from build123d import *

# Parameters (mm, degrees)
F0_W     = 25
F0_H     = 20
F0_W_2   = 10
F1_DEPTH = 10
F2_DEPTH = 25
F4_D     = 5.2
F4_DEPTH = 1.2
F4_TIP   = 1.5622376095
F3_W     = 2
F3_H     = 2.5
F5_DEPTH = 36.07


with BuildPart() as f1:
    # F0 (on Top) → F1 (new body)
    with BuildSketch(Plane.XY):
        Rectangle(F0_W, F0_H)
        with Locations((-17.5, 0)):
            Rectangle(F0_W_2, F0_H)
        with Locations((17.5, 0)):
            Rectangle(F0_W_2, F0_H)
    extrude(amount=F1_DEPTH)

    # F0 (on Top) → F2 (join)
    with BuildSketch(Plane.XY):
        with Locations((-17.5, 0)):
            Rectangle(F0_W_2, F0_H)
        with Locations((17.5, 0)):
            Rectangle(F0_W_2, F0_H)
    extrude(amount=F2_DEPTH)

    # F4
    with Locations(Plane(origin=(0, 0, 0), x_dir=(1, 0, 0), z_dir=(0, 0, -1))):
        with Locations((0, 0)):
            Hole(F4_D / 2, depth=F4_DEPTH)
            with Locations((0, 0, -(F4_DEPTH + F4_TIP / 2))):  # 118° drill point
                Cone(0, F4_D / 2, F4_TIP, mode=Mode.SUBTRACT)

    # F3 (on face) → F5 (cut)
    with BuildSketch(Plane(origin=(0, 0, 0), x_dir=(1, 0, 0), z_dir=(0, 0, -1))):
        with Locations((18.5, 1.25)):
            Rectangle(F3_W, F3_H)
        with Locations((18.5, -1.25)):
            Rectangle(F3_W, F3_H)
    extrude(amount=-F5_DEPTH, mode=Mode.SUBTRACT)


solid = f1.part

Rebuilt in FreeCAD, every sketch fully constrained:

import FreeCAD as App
import Part
import Sketcher

doc = App.newDocument("Part")
body = doc.addObject("PartDesign::Body", "Body")

sketch1 = doc.addObject("Sketcher::SketchObject", "Sketch")
body.addObject(sketch1)
sketch1.AttachmentSupport = (doc.XY_Plane, [""])
sketch1.MapMode = "FlatFace"
sketch1.addGeometry([
    Part.LineSegment(App.Vector(-22, 10, 0), App.Vector(-22, -10, 0)),
    Part.LineSegment(App.Vector(-22, -10, 0), App.Vector(22, -10, 0)),
    Part.LineSegment(App.Vector(22, -10, 0), App.Vector(22, 10, 0)),
    Part.LineSegment(App.Vector(22, 10, 0), App.Vector(-22, 10, 0)),
], False)
sketch1.addConstraint([
    Sketcher.Constraint("Coincident", 0, 2, 1, 1),
    Sketcher.Constraint("Coincident", 1, 2, 2, 1),
    Sketcher.Constraint("Coincident", 2, 2, 3, 1),
    Sketcher.Constraint("Coincident", 3, 2, 0, 1),
    Sketcher.Constraint("Vertical", 0),
    Sketcher.Constraint("Horizontal", 1),
    Sketcher.Constraint("Vertical", 2),
    Sketcher.Constraint("Horizontal", 3),
    Sketcher.Constraint("Symmetric", 0, 2, 2, 2, -1, 1),
    Sketcher.Constraint("DistanceX", 1, 1, 1, 2, 45.0),
    Sketcher.Constraint("DistanceY", 0, 2, 0, 1, 20.0),
])
pad1 = doc.addObject("PartDesign::Pad", "Pad")
body.addObject(pad1)
pad1.Profile = sketch1
pad1.Length = 10

sketch2 = doc.addObject("Sketcher::SketchObject", "Sketch001")
body.addObject(sketch2)
sketch2.AttachmentSupport = (doc.XY_Plane, [""])
sketch2.MapMode = "FlatFace"
sketch2.addGeometry([
    Part.LineSegment(App.Vector(-22, 10, 0), App.Vector(-22, -10, 0)),
    Part.LineSegment(App.Vector(-22, -10, 0), App.Vector(-12, -10, 0)),
    Part.LineSegment(App.Vector(-12, -10, 0), App.Vector(-12, 10, 0)),
    Part.LineSegment(App.Vector(-12, 10, 0), App.Vector(-22, 10, 0)),
    Part.LineSegment(App.Vector(12, 10, 0), App.Vector(12, -10, 0)),
    Part.LineSegment(App.Vector(12, -10, 0), App.Vector(22, -10, 0)),
    Part.LineSegment(App.Vector(22, -10, 0), App.Vector(22, 10, 0)),
    Part.LineSegment(App.Vector(22, 10, 0), App.Vector(12, 10, 0)),
], False)
sketch2.addConstraint([
    Sketcher.Constraint("Coincident", 0, 2, 1, 1),
    Sketcher.Constraint("Coincident", 1, 2, 2, 1),
    Sketcher.Constraint("Coincident", 2, 2, 3, 1),
    Sketcher.Constraint("Coincident", 3, 2, 0, 1),
    Sketcher.Constraint("Coincident", 4, 2, 5, 1),
    Sketcher.Constraint("Coincident", 5, 2, 6, 1),
    Sketcher.Constraint("Coincident", 6, 2, 7, 1),
    Sketcher.Constraint("Coincident", 7, 2, 4, 1),
    Sketcher.Constraint("Vertical", 0),
    Sketcher.Constraint("Horizontal", 1),
    Sketcher.Constraint("Vertical", 2),
    Sketcher.Constraint("Horizontal", 3),
    Sketcher.Constraint("Vertical", 4),
    Sketcher.Constraint("Horizontal", 5),
    Sketcher.Constraint("Vertical", 6),
    Sketcher.Constraint("Horizontal", 7),
    Sketcher.Constraint("Symmetric", 2, 2, 4, 2, -1, 1),
    Sketcher.Constraint("Symmetric", 0, 2, 6, 2, -1, 1),
    Sketcher.Constraint("Horizontal", 1, 2, 4, 2),
    Sketcher.Constraint("DistanceX", 1, 1, 1, 2, 10.0),
    Sketcher.Constraint("DistanceY", 0, 2, 0, 1, 20.0),
    Sketcher.Constraint("DistanceX", 1, 2, 4, 2, 25.0),
])
pad2 = doc.addObject("PartDesign::Pad", "Pad001")
body.addObject(pad2)
pad2.Profile = sketch2
pad2.Length = 25

sketch3 = doc.addObject("Sketcher::SketchObject", "Sketch002")
body.addObject(sketch3)
sketch3.AttachmentSupport = (doc.XY_Plane, [""])
sketch3.MapMode = "FlatFace"
sketch3.addGeometry(Part.Circle(App.Vector(0, 0, 0), App.Vector(0, 0, 1), 2.6), False)
sketch3.addConstraint([
    Sketcher.Constraint("Coincident", 0, 3, -1, 1),
    Sketcher.Constraint("Diameter", 0, 5.2),
])
doc.recompute()
hole = doc.addObject("PartDesign::Hole", "Hole")
body.addObject(hole)
hole.Profile = sketch3
hole.ThreadType = "None"
hole.Diameter = 5.2
hole.DepthType = "Dimension"
hole.Depth = 1.2
hole.DrillPoint = "Angled"
hole.DrillPointAngle = 118
hole.Reversed = True

sketch4 = doc.addObject("Sketcher::SketchObject", "Sketch003")
body.addObject(sketch4)
sketch4.AttachmentSupport = (doc.XY_Plane, [""])
sketch4.MapMode = "FlatFace"
sketch4.addGeometry([
    Part.LineSegment(App.Vector(17.5, -2.5, 0), App.Vector(17.5, 2.5, 0)),
    Part.LineSegment(App.Vector(17.5, 2.5, 0), App.Vector(19.5, 2.5, 0)),
    Part.LineSegment(App.Vector(19.5, 2.5, 0), App.Vector(19.5, -2.5, 0)),
    Part.LineSegment(App.Vector(19.5, -2.5, 0), App.Vector(17.5, -2.5, 0)),
], False)
sketch4.addConstraint([
    Sketcher.Constraint("Coincident", 0, 2, 1, 1),
    Sketcher.Constraint("Coincident", 1, 2, 2, 1),
    Sketcher.Constraint("Coincident", 2, 2, 3, 1),
    Sketcher.Constraint("Coincident", 3, 2, 0, 1),
    Sketcher.Constraint("Vertical", 0),
    Sketcher.Constraint("Horizontal", 1),
    Sketcher.Constraint("Vertical", 2),
    Sketcher.Constraint("Horizontal", 3),
    Sketcher.Constraint("DistanceX", 1, 1, 1, 2, 2.0),
    Sketcher.Constraint("DistanceY", 0, 1, 0, 2, 5.0),
    Sketcher.Constraint("DistanceX", -1, 1, 0, 2, 17.5),
    Sketcher.Constraint("DistanceY", -1, 1, 0, 2, 2.5),
])
pocket1 = doc.addObject("PartDesign::Pocket", "Pocket")
body.addObject(pocket1)
pocket1.Profile = sketch4
pocket1.Length = 36.07
pocket1.Reversed = True

doc.recompute()
